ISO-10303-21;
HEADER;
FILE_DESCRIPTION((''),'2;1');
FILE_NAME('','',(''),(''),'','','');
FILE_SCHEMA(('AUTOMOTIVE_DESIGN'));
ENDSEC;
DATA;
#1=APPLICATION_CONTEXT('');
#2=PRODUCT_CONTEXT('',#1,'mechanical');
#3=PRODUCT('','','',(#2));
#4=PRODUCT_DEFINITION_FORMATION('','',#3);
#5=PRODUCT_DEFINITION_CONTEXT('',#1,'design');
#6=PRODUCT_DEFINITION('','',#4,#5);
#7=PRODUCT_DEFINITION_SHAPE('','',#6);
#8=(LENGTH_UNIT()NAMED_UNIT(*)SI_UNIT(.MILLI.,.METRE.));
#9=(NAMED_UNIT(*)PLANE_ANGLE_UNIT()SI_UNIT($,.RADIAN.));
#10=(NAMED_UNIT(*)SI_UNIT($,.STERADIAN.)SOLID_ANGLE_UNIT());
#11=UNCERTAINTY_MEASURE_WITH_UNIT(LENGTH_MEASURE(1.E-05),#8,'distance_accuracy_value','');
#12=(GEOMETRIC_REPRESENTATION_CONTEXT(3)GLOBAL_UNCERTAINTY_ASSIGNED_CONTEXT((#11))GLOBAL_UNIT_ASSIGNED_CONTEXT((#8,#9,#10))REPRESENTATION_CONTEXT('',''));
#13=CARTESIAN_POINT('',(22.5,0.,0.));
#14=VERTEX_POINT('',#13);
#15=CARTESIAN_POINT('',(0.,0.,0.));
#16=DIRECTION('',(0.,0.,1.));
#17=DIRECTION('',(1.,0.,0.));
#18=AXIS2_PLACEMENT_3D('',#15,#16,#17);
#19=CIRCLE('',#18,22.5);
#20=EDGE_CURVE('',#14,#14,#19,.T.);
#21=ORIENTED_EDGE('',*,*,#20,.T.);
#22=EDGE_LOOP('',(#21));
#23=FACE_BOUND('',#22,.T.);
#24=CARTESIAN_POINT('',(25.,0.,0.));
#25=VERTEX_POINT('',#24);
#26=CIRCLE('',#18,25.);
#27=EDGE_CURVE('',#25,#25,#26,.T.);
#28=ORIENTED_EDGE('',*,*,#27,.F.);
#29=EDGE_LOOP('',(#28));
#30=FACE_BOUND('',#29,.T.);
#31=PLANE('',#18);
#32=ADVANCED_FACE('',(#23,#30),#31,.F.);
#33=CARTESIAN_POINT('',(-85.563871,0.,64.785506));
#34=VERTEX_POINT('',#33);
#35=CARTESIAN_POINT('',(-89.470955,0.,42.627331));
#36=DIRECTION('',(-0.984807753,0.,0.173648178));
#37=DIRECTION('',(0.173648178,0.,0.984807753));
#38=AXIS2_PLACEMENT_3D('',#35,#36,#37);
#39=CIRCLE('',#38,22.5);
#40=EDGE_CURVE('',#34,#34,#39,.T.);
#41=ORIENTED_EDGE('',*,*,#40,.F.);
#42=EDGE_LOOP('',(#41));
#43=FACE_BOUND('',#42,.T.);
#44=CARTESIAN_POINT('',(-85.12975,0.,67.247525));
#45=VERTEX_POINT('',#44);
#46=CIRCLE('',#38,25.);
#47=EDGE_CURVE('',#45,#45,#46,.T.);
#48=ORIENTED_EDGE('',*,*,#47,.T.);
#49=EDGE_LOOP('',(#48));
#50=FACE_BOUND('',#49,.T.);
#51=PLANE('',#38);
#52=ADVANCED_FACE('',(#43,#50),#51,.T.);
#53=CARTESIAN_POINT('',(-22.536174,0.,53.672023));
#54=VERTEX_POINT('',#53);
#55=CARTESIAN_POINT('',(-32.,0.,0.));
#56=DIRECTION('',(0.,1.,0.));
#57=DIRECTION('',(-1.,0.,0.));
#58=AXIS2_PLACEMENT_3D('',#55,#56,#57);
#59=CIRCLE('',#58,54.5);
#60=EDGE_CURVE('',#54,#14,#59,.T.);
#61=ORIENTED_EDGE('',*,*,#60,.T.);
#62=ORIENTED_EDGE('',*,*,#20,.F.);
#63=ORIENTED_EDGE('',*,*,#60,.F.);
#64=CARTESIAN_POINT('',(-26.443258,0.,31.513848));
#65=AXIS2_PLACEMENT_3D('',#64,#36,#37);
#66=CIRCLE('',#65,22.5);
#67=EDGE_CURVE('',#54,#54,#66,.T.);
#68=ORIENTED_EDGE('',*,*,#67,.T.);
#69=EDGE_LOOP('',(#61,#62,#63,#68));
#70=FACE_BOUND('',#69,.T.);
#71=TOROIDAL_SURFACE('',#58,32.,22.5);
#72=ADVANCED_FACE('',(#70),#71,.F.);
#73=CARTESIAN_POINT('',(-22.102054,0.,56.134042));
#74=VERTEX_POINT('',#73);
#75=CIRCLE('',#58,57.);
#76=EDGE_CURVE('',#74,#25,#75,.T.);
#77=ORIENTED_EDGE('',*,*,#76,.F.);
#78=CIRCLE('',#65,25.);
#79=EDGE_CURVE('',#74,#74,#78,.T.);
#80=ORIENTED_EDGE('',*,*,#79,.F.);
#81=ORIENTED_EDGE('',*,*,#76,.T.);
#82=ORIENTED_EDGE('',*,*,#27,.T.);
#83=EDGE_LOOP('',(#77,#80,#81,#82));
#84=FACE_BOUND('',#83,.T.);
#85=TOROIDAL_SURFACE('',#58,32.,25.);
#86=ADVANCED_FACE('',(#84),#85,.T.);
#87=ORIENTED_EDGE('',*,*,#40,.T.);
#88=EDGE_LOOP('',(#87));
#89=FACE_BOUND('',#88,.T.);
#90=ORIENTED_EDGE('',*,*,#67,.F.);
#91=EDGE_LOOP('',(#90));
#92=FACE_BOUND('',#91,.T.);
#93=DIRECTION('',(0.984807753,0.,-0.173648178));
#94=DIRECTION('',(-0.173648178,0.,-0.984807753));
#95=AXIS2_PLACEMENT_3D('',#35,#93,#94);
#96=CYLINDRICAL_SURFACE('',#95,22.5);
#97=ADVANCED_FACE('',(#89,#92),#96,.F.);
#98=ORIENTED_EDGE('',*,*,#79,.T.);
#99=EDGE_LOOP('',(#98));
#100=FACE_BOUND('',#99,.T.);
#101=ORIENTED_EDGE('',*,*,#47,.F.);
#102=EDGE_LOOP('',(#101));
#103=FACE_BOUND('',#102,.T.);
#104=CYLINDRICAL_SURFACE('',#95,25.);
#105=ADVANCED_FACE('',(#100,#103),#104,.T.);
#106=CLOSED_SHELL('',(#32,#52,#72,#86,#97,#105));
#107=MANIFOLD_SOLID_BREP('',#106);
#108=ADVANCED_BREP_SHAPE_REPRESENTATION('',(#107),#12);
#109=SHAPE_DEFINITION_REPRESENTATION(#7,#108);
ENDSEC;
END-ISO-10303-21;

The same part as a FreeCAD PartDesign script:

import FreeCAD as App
import Part
import Sketcher
from FreeCAD import Vector

doc = App.newDocument("Part")
body = doc.addObject("PartDesign::Body", "Body")

sketch1 = body.newObject("Sketcher::SketchObject", "Sketch")
sketch1.AttachmentSupport = (doc.getObject("XY_Plane"), [""])
sketch1.MapMode = "FlatFace"
sketch1.addGeometry(Part.Circle(Vector(0, 0, 0), Vector(0, 0, 1), 25), False)
sketch1.addGeometry(Part.Circle(Vector(0, 0, 0), Vector(0, 0, 1), 22), False)
sketch1.addGeometry(Part.LineSegment(Vector(-32, 0, 0), Vector(-32, -10, 0)), True)
sketch1.addConstraint(Sketcher.Constraint("Vertical", 2))
sketch1.addConstraint(Sketcher.Constraint("Coincident", 0, 3, -1, 1))
sketch1.addConstraint(Sketcher.Constraint("Coincident", 1, 3, -1, 1))
sketch1.addConstraint(Sketcher.Constraint("PointOnObject", 2, 1, -1))
sketch1.addConstraint(Sketcher.Constraint("Diameter", 0, 50.0))
sketch1.addConstraint(Sketcher.Constraint("Diameter", 1, 45.0))
sketch1.addConstraint(Sketcher.Constraint("DistanceY", 2, 2, 2, 1, 10.0))
sketch1.addConstraint(Sketcher.Constraint("DistanceX", 2, 1, -1, 1, 32.0))
revolution = body.newObject("PartDesign::Revolution", "Revolution")
revolution.Profile = sketch1
revolution.ReferenceAxis = (sketch1, ["Axis0"])
revolution.Angle = 80

sketch2 = body.newObject("Sketcher::SketchObject", "Sketch001")
sketch2.Placement = App.Placement(Vector(-31.035082, 0, 5.472322), App.Rotation(Vector(0.173648178, 0, 0.984807753), Vector(0, 1, 0), Vector(-0.984807753, 0, 0.173648178), "ZXY"))
sketch2.addGeometry(Part.Circle(Vector(26, 0, 0), Vector(0, 0, 1), 25), False)
sketch2.addGeometry(Part.Circle(Vector(26, 0, 0), Vector(0, 0, 1), 22), False)
sketch2.addConstraint(Sketcher.Constraint("Coincident", 1, 3, 0, 3))
sketch2.addConstraint(Sketcher.Constraint("PointOnObject", 0, 3, -1))
sketch2.addConstraint(Sketcher.Constraint("Diameter", 0, 50.0))
sketch2.addConstraint(Sketcher.Constraint("Diameter", 1, 45.0))
sketch2.addConstraint(Sketcher.Constraint("DistanceX", -1, 1, 0, 3, 26.443258))
pad1 = body.newObject("PartDesign::Pad", "Pad")
pad1.Profile = sketch2
pad1.Length = 64

doc.recompute()
